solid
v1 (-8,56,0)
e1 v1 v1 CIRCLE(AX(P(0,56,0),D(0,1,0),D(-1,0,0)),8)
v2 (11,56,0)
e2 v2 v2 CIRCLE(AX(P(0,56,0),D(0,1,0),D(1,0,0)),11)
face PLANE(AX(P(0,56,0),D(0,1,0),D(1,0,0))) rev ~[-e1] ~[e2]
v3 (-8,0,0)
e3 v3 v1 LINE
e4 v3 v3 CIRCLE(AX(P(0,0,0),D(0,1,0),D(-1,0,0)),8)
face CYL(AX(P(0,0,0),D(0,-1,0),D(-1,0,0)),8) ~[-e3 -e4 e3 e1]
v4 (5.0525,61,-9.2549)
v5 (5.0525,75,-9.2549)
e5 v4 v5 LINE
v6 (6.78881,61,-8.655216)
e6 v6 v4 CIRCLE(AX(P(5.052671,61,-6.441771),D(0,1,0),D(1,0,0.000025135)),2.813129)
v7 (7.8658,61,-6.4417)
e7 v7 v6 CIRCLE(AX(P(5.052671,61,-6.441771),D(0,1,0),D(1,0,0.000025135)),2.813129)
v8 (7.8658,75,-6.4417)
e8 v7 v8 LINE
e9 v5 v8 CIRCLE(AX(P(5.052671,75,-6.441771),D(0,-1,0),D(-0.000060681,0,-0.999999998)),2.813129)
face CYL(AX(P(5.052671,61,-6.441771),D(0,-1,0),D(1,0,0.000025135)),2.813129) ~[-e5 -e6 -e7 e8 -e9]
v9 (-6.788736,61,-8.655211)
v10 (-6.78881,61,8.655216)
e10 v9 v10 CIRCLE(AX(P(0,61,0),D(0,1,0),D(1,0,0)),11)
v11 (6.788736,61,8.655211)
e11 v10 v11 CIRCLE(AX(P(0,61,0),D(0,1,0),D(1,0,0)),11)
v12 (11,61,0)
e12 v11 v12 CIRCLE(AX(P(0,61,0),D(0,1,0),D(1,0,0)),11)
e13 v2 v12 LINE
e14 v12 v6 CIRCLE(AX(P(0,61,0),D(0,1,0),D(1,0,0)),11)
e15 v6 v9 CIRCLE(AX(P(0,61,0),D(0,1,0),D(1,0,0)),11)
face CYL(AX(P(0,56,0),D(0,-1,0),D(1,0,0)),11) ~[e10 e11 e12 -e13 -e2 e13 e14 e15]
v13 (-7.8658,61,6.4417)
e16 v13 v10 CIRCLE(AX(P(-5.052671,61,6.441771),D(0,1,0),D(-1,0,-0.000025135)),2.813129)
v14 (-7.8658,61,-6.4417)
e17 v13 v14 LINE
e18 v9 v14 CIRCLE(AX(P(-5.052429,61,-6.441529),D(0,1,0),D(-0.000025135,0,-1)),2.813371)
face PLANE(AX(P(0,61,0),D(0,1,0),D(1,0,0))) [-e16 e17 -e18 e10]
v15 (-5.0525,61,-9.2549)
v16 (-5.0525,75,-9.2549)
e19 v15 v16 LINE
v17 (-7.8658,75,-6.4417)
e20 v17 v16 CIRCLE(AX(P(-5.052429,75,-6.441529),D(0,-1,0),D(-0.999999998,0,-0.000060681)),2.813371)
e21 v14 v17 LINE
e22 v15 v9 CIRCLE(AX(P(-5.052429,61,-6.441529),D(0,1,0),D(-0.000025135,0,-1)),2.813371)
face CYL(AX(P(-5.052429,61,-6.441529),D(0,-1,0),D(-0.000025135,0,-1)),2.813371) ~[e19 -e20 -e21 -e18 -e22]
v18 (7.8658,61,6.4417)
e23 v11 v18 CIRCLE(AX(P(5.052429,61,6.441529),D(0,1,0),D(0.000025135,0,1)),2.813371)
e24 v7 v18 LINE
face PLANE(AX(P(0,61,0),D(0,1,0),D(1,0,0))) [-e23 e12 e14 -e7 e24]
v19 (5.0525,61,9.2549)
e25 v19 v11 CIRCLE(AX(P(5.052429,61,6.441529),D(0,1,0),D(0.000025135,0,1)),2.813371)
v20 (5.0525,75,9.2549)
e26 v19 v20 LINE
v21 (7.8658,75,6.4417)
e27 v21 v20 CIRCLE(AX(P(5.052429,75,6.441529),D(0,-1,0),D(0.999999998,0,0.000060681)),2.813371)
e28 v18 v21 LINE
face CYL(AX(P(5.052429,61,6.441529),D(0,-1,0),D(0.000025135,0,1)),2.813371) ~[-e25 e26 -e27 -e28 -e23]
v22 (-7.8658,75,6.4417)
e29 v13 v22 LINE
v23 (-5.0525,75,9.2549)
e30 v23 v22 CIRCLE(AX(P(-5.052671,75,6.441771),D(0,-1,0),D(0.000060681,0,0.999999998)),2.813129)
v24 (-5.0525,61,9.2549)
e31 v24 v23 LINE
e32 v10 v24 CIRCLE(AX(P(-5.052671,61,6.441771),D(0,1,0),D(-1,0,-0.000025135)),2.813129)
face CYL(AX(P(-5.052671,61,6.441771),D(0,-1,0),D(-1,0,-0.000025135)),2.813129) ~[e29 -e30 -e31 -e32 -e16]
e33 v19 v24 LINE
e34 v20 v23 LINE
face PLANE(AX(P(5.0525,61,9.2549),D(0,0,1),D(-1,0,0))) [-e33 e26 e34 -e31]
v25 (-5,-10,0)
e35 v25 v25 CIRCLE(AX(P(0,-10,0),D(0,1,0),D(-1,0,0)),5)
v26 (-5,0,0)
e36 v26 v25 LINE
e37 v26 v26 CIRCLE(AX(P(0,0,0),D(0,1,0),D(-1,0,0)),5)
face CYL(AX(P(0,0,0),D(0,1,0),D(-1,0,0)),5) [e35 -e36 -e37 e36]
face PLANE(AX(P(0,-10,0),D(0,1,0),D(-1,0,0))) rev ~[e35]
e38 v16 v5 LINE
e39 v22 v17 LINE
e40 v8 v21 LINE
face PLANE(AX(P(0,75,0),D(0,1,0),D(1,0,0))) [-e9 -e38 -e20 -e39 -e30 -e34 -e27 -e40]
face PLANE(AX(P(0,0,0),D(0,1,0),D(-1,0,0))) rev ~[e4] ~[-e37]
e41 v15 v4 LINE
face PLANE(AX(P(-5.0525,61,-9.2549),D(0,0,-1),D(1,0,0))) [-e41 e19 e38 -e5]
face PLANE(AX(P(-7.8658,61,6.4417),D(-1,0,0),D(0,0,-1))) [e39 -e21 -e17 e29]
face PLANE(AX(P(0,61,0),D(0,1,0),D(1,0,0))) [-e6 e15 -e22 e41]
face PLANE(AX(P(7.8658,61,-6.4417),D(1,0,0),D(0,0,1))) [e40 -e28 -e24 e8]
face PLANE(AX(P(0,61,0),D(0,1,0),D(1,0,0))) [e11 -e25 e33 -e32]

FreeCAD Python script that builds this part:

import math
import FreeCAD as App
import Part
import Sketcher

doc = App.newDocument("Part")
body = doc.addObject("PartDesign::Body", "Body")

# Sketch on XZ plane
sketch1 = doc.addObject("Sketcher::SketchObject", "Sketch")
body.addObject(sketch1)
sketch1.AttachmentSupport = (doc.XZ_Plane, [""])
sketch1.MapMode = "FlatFace"
sketch1.addGeometry(Part.Circle(App.Vector(0, 0, 0), App.Vector(0, 0, 1), 8), False)
sketch1.addConstraint([
    Sketcher.Constraint("Coincident", 0, 3, -1, 1),
    Sketcher.Constraint("Diameter", 0, 16.0),
])
pad1 = doc.addObject("PartDesign::Pad", "Pad")
body.addObject(pad1)
pad1.Profile = sketch1
pad1.Length = 56
pad1.Reversed = True

# Sketch on XZ plane
sketch2 = doc.addObject("Sketcher::SketchObject", "Sketch001")
body.addObject(sketch2)
sketch2.AttachmentSupport = (doc.XZ_Plane, [""])
sketch2.MapMode = "FlatFace"
sketch2.addGeometry(Part.Circle(App.Vector(0, 0, 0), App.Vector(0, 0, 1), 5), False)
sketch2.addConstraint([
    Sketcher.Constraint("Coincident", 0, 3, -1, 1),
    Sketcher.Constraint("Diameter", 0, 10.0),
])
pad2 = doc.addObject("PartDesign::Pad", "Pad001")
body.addObject(pad2)
pad2.Profile = sketch2
pad2.Length = 10

# Sketch on XZ plane
sketch3 = doc.addObject("Sketcher::SketchObject", "Sketch002")
body.addObject(sketch3)
sketch3.AttachmentSupport = (doc.XZ_Plane, [""])
sketch3.MapMode = "FlatFace"
sketch3.AttachmentOffset = App.Placement(App.Vector(0, 0, -56), App.Rotation())
sketch3.addGeometry(Part.Circle(App.Vector(0, 0, 0), App.Vector(0, 0, 1), 11), False)
sketch3.addConstraint([
    Sketcher.Constraint("Coincident", 0, 3, -1, 1),
    Sketcher.Constraint("Diameter", 0, 22.0),
])
pad3 = doc.addObject("PartDesign::Pad", "Pad002")
body.addObject(pad3)
pad3.Profile = sketch3
pad3.Length = 5
pad3.Reversed = True

# Sketch on XZ plane
sketch4 = doc.addObject("Sketcher::SketchObject", "Sketch003")
body.addObject(sketch4)
sketch4.AttachmentSupport = (doc.XZ_Plane, [""])
sketch4.MapMode = "FlatFace"
sketch4.AttachmentOffset = App.Placement(App.Vector(0, 0, -61), App.Rotation())
sketch4.addGeometry([
    Part.ArcOfCircle(Part.Circle(App.Vector(5.1, -6.4, 0), App.Vector(0, 0, 1), 2.8), math.radians(-90), math.radians(0)),  # 0
    Part.LineSegment(App.Vector(5.1, -9.3, 0), App.Vector(-5.1, -9.3, 0)),  # 1
    Part.ArcOfCircle(Part.Circle(App.Vector(-5.1, -6.4, 0), App.Vector(0, 0, 1), 2.8), math.radians(180), math.radians(270)),  # 2
    Part.LineSegment(App.Vector(-7.9, -6.4, 0), App.Vector(-7.9, 6.4, 0)),  # 3
    Part.ArcOfCircle(Part.Circle(App.Vector(-5.1, 6.4, 0), App.Vector(0, 0, 1), 2.8), math.radians(90), math.radians(180)),  # 4
    Part.LineSegment(App.Vector(-5.1, 9.3, 0), App.Vector(5.1, 9.3, 0)),  # 5
    Part.ArcOfCircle(Part.Circle(App.Vector(5.1, 6.4, 0), App.Vector(0, 0, 1), 2.8), math.radians(0), math.radians(90)),  # 6
    Part.LineSegment(App.Vector(7.9, 6.4, 0), App.Vector(7.9, -6.4, 0)),  # 7
], False)
sketch4.addConstraint([
    Sketcher.Constraint("Tangent", 0, 1, 1, 1),
    Sketcher.Constraint("Tangent", 1, 2, 2, 2),
    Sketcher.Constraint("Tangent", 2, 1, 3, 1),
    Sketcher.Constraint("Tangent", 3, 2, 4, 2),
    Sketcher.Constraint("Tangent", 4, 1, 5, 1),
    Sketcher.Constraint("Tangent", 5, 2, 6, 2),
    Sketcher.Constraint("Tangent", 6, 1, 7, 1),
    Sketcher.Constraint("Tangent", 7, 2, 0, 2),
    Sketcher.Constraint("Horizontal", 1),
    Sketcher.Constraint("Vertical", 3),
    Sketcher.Constraint("Horizontal", 5),
    Sketcher.Constraint("Vertical", 7),
    Sketcher.Constraint("Equal", 0, 2),
    Sketcher.Constraint("Equal", 2, 4),
    Sketcher.Constraint("Equal", 4, 6),
    Sketcher.Constraint("Symmetric", 0, 3, 4, 3, -1, 1),
    Sketcher.Constraint("Radius", 0, 2.8133),
    Sketcher.Constraint("DistanceX", 1, 2, 1, 1, 10.105),
    Sketcher.Constraint("DistanceY", 3, 1, 3, 2, 12.8834),
])
pad4 = doc.addObject("PartDesign::Pad", "Pad003")
body.addObject(pad4)
pad4.Profile = sketch4
pad4.Length = 14
pad4.Reversed = True

doc.recompute()
